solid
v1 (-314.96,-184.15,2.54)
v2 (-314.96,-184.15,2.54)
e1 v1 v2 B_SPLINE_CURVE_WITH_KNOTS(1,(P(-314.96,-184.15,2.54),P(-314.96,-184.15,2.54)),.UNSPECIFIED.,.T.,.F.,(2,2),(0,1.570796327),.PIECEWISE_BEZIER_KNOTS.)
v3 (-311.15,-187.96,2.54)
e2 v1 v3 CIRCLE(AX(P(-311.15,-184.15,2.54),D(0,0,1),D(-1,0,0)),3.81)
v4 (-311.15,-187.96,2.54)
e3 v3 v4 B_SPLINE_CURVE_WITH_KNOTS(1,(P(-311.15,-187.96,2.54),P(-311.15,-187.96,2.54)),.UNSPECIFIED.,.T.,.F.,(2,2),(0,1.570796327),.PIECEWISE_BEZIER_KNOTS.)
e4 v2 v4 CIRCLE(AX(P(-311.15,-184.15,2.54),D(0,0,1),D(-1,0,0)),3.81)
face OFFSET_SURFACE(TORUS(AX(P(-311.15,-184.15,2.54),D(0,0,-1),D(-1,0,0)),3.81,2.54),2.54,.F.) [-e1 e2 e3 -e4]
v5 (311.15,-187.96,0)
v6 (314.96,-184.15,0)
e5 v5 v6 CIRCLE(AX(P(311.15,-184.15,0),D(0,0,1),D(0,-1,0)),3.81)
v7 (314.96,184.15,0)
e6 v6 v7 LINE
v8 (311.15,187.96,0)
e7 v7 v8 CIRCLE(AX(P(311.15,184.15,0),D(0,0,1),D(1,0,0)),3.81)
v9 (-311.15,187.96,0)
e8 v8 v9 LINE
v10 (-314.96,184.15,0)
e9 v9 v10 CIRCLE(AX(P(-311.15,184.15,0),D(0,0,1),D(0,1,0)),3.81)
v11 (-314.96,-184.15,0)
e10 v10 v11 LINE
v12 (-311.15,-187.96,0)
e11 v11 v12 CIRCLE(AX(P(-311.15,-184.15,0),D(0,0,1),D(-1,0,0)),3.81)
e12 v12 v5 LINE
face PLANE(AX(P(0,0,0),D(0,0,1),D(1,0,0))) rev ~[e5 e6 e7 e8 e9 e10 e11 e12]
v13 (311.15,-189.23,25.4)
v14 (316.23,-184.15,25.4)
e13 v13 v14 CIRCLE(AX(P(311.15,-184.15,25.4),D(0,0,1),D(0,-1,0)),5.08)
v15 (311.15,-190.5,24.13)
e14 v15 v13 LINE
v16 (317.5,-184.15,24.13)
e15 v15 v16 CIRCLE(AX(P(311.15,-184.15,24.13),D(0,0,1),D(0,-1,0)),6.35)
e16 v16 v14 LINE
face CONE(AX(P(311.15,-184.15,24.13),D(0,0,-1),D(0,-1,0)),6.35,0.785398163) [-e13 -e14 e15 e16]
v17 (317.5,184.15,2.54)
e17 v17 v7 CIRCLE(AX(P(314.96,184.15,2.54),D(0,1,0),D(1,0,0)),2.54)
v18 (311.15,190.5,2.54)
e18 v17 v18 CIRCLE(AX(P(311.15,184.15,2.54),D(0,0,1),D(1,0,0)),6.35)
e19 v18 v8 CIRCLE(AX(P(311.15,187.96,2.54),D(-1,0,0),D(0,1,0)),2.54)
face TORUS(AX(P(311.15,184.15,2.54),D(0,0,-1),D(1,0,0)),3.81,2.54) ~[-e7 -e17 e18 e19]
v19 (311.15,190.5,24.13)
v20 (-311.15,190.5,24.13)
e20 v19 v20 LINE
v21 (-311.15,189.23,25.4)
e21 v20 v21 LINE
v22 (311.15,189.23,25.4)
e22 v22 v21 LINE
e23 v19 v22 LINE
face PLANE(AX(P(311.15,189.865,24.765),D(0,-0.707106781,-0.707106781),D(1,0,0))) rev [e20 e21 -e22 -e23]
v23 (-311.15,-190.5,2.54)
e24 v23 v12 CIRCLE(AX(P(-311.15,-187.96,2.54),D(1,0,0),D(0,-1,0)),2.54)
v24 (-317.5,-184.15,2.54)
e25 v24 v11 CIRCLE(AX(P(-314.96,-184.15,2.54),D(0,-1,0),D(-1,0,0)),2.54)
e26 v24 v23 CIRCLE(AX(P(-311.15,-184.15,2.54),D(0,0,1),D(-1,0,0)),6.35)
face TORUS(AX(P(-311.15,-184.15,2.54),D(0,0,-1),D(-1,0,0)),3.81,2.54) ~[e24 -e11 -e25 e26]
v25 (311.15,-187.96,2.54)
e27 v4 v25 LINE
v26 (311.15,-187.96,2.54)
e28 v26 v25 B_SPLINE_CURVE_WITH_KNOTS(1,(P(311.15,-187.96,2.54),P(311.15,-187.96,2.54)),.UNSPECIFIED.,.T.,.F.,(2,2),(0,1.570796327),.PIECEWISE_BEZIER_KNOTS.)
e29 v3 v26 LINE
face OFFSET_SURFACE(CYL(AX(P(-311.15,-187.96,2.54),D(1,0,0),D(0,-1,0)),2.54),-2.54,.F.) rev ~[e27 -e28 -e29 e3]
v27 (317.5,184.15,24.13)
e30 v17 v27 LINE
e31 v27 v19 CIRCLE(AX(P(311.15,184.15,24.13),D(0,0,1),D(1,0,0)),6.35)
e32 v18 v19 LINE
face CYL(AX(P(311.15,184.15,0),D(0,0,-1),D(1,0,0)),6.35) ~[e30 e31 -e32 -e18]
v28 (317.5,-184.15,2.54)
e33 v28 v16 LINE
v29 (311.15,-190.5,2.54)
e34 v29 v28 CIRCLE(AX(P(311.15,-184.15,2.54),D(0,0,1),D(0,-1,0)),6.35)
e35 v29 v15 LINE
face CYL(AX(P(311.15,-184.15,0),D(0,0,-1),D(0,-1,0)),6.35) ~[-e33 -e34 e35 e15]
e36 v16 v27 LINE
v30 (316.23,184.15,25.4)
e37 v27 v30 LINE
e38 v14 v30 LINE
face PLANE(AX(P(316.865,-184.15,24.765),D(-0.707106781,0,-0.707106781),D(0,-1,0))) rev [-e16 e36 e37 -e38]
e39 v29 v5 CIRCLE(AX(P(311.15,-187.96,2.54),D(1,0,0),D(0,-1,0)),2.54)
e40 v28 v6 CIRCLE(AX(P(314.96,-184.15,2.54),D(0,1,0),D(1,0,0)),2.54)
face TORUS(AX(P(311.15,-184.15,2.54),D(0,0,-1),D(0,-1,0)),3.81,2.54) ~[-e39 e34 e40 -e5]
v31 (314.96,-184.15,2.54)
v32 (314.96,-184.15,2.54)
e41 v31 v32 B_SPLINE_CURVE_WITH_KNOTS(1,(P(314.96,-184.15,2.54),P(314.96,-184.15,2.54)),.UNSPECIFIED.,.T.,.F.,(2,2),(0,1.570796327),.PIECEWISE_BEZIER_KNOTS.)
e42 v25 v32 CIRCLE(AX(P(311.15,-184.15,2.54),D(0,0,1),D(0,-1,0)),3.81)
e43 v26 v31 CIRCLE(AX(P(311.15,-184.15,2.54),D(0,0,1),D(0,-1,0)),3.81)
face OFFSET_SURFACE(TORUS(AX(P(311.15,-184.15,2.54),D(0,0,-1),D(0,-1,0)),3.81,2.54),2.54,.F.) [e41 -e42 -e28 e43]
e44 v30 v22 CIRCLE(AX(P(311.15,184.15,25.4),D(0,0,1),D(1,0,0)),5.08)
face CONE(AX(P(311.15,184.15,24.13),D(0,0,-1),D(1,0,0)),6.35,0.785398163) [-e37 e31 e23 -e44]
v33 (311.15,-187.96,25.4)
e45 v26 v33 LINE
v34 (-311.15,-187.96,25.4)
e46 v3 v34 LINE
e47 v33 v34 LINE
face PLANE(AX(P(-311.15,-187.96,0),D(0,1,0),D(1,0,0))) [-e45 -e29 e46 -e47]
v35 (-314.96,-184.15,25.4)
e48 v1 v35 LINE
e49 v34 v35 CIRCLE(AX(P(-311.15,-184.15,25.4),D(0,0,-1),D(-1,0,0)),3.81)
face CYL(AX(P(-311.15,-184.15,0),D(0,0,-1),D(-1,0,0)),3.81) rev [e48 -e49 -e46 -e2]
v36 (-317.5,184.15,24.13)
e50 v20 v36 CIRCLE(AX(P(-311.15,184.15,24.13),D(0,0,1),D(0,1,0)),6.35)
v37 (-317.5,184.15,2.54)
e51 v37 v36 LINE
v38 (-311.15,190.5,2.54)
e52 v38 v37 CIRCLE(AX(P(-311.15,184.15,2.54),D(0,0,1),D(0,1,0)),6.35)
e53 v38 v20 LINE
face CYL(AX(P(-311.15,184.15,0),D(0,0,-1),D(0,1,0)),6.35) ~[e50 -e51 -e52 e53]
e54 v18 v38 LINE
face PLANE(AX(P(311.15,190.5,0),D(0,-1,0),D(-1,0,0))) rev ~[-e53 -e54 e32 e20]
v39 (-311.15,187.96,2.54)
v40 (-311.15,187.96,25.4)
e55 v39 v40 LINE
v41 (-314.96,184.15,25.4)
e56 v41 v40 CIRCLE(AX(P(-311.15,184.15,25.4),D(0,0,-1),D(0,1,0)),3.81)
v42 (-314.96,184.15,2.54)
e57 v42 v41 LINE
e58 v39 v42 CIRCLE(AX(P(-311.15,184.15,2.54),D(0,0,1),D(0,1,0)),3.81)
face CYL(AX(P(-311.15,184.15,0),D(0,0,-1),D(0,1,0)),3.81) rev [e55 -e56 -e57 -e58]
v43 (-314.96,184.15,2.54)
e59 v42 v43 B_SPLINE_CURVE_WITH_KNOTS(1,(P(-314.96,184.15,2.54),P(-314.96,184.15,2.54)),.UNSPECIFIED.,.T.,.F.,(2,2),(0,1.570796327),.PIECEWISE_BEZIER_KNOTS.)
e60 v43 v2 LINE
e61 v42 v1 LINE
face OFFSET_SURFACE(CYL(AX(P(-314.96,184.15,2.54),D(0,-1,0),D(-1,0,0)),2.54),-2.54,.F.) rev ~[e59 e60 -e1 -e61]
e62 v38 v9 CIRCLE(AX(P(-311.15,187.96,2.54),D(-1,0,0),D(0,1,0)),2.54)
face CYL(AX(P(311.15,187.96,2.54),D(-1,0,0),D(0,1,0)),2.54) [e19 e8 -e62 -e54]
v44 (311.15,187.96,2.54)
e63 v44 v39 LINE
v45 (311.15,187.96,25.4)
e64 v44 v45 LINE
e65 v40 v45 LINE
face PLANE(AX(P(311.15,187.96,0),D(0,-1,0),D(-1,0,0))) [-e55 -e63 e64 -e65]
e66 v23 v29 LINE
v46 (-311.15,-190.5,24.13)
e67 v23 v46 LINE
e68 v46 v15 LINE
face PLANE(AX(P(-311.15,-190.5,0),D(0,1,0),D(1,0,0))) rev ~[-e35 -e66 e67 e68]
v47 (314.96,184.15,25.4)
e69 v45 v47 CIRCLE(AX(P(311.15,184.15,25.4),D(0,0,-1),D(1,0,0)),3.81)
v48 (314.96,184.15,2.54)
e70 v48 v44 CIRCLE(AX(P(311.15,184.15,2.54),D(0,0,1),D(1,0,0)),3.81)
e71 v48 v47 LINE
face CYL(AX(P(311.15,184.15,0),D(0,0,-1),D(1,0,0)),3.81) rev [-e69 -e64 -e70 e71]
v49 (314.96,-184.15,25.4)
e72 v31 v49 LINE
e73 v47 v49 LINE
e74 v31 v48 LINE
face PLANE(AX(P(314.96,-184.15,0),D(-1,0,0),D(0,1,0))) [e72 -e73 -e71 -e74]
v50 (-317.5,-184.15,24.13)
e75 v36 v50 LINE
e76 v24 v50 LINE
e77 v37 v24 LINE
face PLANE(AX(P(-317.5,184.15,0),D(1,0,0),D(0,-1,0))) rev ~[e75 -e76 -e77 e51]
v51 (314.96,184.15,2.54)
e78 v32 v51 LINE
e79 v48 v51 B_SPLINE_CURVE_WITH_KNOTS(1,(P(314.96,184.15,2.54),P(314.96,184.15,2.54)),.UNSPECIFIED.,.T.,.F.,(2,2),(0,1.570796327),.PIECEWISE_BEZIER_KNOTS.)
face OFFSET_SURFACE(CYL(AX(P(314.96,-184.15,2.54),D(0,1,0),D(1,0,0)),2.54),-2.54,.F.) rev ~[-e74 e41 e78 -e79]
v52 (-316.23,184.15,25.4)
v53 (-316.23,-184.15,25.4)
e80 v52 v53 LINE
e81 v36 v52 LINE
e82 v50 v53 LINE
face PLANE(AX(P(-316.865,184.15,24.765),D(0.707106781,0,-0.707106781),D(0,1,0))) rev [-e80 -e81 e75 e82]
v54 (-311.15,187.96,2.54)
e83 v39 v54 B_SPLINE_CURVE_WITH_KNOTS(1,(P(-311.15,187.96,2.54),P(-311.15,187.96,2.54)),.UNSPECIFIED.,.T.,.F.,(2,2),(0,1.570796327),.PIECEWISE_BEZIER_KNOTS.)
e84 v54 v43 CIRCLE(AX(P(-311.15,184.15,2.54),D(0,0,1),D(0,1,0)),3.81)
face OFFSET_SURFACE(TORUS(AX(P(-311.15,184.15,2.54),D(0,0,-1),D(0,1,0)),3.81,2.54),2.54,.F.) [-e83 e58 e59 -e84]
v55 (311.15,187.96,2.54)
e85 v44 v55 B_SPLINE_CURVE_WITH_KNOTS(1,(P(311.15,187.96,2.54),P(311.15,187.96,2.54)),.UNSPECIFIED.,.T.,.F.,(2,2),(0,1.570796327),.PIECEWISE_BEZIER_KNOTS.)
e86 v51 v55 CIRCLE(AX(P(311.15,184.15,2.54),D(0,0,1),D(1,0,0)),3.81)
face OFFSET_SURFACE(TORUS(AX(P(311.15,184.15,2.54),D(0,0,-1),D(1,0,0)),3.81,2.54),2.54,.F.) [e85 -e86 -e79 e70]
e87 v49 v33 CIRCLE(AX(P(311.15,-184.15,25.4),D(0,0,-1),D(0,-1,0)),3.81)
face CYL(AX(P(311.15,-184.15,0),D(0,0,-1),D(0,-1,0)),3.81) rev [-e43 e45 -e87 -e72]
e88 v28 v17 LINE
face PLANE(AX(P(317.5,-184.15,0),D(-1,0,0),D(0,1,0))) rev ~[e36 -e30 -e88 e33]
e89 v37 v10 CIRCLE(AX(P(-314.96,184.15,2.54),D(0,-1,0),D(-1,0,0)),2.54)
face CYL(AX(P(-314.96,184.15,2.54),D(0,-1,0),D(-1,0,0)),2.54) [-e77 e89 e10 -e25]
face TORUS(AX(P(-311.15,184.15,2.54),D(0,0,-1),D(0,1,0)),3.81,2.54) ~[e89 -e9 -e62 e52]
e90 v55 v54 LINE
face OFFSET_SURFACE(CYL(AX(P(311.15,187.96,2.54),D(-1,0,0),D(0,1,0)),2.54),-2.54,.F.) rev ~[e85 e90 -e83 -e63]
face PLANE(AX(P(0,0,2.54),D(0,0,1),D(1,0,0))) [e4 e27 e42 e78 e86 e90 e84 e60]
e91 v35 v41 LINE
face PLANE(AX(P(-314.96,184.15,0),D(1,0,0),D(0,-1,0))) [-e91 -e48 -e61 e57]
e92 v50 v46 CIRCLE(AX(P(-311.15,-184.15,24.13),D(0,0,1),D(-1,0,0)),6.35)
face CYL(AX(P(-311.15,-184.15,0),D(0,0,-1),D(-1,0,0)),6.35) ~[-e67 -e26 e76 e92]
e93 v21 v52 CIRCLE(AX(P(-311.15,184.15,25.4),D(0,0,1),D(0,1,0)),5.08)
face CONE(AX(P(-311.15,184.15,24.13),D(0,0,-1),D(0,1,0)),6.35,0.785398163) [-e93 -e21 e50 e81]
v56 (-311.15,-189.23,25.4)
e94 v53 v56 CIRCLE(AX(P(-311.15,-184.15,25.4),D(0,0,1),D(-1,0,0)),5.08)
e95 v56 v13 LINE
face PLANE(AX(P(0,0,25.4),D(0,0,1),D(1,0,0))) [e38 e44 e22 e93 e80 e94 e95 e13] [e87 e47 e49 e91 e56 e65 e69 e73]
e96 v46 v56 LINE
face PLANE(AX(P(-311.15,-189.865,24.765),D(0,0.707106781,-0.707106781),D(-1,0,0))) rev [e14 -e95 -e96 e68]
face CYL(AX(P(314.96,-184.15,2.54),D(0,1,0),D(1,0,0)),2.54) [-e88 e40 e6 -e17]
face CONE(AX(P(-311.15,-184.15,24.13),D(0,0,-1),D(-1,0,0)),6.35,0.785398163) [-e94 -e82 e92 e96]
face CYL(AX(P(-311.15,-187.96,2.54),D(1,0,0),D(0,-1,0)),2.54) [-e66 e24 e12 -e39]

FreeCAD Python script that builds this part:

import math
import FreeCAD as App
import Part
import Sketcher

V = App.Vector
Q = App.Units.Quantity


def edges_at(feature, points):
    """Names of the edges that pass closest to the given points."""
    edges = feature.Shape.Edges
    near = lambda p: min(range(len(edges)), key=lambda i: edges[i].distToShape(Part.Vertex(*p))[0])
    return sorted({f"Edge{near(p) + 1}" for p in points})


def faces_at(feature, points):
    """Names of the faces that lie closest to the given points."""
    faces = feature.Shape.Faces
    near = lambda p: min(range(len(faces)), key=lambda i: faces[i].distToShape(Part.Vertex(*p))[0])
    return sorted({f"Face{near(p) + 1}" for p in points})

doc = App.newDocument("Part")
body = doc.addObject("PartDesign::Body", "Body")

sketch1 = body.newObject("Sketcher::SketchObject", "Sketch")
sketch1.AttachmentSupport = (doc.getObject("XY_Plane"), [""])
sketch1.MapMode = "FlatFace"
sketch1.addGeometry(Part.ArcOfCircle(Part.Circle(V(-311, -184, 0), V(0, 0, 1), 6), math.radians(180), math.radians(270)), False)
sketch1.addGeometry(Part.LineSegment(V(-311, -190, 0), V(311, -190, 0)), False)
sketch1.addGeometry(Part.ArcOfCircle(Part.Circle(V(311, -184, 0), V(0, 0, 1), 6), math.radians(-90), math.radians(0)), False)
sketch1.addGeometry(Part.LineSegment(V(318, -184, 0), V(318, 184, 0)), False)
sketch1.addGeometry(Part.ArcOfCircle(Part.Circle(V(311, 184, 0), V(0, 0, 1), 6), math.radians(0), math.radians(90)), False)
sketch1.addGeometry(Part.LineSegment(V(311, 190, 0), V(-311, 190, 0)), False)
sketch1.addGeometry(Part.ArcOfCircle(Part.Circle(V(-311, 184, 0), V(0, 0, 1), 6), math.radians(90), math.radians(180)), False)
sketch1.addGeometry(Part.LineSegment(V(-318, 184, 0), V(-318, -184, 0)), False)
sketch1.addConstraint(Sketcher.Constraint("Tangent", 0, 2, 1, 1))
sketch1.addConstraint(Sketcher.Constraint("Tangent", 1, 2, 2, 1))
sketch1.addConstraint(Sketcher.Constraint("Tangent", 2, 2, 3, 1))
sketch1.addConstraint(Sketcher.Constraint("Tangent", 3, 2, 4, 1))
sketch1.addConstraint(Sketcher.Constraint("Tangent", 4, 2, 5, 1))
sketch1.addConstraint(Sketcher.Constraint("Tangent", 5, 2, 6, 1))
sketch1.addConstraint(Sketcher.Constraint("Tangent", 6, 2, 7, 1))
sketch1.addConstraint(Sketcher.Constraint("Tangent", 7, 2, 0, 1))
sketch1.addConstraint(Sketcher.Constraint("Horizontal", 1))
sketch1.addConstraint(Sketcher.Constraint("Vertical", 3))
sketch1.addConstraint(Sketcher.Constraint("Horizontal", 5))
sketch1.addConstraint(Sketcher.Constraint("Vertical", 7))
sketch1.addConstraint(Sketcher.Constraint("Equal", 0, 2))
sketch1.addConstraint(Sketcher.Constraint("Equal", 2, 4))
sketch1.addConstraint(Sketcher.Constraint("Equal", 4, 6))
sketch1.addConstraint(Sketcher.Constraint("Symmetric", 0, 3, 4, 3, -1, 1))
sketch1.addConstraint(Sketcher.Constraint("Radius", 0, Q("0.25 in")))
sketch1.addConstraint(Sketcher.Constraint("DistanceX", 1, 1, 1, 2, Q("24.5 in")))
sketch1.addConstraint(Sketcher.Constraint("DistanceY", 3, 1, 3, 2, Q("14.5 in")))
pad1 = body.newObject("PartDesign::Pad", "Pad")
pad1.Profile = sketch1
pad1.Length = Q("1 in")
doc.recompute()

fillet = body.newObject("PartDesign::Fillet", "Fillet")
fillet.Base = (pad1, edges_at(pad1, [(0, -190.5, 0)]))
fillet.Radius = Q("0.1 in")
doc.recompute()

thickness = body.newObject("PartDesign::Thickness", "Thickness")
thickness.Base = (fillet, faces_at(fillet, [(0, 0, 25.4)]))
thickness.Value = Q("0.1 in")
thickness.Reversed = True
thickness.Join = "Intersection"
doc.recompute()

chamfer = body.newObject("PartDesign::Chamfer", "Chamfer")
chamfer.Base = (thickness, edges_at(thickness, [(0, 190.5, 25.4)]))
chamfer.Size = Q("0.05 in")

doc.recompute()
